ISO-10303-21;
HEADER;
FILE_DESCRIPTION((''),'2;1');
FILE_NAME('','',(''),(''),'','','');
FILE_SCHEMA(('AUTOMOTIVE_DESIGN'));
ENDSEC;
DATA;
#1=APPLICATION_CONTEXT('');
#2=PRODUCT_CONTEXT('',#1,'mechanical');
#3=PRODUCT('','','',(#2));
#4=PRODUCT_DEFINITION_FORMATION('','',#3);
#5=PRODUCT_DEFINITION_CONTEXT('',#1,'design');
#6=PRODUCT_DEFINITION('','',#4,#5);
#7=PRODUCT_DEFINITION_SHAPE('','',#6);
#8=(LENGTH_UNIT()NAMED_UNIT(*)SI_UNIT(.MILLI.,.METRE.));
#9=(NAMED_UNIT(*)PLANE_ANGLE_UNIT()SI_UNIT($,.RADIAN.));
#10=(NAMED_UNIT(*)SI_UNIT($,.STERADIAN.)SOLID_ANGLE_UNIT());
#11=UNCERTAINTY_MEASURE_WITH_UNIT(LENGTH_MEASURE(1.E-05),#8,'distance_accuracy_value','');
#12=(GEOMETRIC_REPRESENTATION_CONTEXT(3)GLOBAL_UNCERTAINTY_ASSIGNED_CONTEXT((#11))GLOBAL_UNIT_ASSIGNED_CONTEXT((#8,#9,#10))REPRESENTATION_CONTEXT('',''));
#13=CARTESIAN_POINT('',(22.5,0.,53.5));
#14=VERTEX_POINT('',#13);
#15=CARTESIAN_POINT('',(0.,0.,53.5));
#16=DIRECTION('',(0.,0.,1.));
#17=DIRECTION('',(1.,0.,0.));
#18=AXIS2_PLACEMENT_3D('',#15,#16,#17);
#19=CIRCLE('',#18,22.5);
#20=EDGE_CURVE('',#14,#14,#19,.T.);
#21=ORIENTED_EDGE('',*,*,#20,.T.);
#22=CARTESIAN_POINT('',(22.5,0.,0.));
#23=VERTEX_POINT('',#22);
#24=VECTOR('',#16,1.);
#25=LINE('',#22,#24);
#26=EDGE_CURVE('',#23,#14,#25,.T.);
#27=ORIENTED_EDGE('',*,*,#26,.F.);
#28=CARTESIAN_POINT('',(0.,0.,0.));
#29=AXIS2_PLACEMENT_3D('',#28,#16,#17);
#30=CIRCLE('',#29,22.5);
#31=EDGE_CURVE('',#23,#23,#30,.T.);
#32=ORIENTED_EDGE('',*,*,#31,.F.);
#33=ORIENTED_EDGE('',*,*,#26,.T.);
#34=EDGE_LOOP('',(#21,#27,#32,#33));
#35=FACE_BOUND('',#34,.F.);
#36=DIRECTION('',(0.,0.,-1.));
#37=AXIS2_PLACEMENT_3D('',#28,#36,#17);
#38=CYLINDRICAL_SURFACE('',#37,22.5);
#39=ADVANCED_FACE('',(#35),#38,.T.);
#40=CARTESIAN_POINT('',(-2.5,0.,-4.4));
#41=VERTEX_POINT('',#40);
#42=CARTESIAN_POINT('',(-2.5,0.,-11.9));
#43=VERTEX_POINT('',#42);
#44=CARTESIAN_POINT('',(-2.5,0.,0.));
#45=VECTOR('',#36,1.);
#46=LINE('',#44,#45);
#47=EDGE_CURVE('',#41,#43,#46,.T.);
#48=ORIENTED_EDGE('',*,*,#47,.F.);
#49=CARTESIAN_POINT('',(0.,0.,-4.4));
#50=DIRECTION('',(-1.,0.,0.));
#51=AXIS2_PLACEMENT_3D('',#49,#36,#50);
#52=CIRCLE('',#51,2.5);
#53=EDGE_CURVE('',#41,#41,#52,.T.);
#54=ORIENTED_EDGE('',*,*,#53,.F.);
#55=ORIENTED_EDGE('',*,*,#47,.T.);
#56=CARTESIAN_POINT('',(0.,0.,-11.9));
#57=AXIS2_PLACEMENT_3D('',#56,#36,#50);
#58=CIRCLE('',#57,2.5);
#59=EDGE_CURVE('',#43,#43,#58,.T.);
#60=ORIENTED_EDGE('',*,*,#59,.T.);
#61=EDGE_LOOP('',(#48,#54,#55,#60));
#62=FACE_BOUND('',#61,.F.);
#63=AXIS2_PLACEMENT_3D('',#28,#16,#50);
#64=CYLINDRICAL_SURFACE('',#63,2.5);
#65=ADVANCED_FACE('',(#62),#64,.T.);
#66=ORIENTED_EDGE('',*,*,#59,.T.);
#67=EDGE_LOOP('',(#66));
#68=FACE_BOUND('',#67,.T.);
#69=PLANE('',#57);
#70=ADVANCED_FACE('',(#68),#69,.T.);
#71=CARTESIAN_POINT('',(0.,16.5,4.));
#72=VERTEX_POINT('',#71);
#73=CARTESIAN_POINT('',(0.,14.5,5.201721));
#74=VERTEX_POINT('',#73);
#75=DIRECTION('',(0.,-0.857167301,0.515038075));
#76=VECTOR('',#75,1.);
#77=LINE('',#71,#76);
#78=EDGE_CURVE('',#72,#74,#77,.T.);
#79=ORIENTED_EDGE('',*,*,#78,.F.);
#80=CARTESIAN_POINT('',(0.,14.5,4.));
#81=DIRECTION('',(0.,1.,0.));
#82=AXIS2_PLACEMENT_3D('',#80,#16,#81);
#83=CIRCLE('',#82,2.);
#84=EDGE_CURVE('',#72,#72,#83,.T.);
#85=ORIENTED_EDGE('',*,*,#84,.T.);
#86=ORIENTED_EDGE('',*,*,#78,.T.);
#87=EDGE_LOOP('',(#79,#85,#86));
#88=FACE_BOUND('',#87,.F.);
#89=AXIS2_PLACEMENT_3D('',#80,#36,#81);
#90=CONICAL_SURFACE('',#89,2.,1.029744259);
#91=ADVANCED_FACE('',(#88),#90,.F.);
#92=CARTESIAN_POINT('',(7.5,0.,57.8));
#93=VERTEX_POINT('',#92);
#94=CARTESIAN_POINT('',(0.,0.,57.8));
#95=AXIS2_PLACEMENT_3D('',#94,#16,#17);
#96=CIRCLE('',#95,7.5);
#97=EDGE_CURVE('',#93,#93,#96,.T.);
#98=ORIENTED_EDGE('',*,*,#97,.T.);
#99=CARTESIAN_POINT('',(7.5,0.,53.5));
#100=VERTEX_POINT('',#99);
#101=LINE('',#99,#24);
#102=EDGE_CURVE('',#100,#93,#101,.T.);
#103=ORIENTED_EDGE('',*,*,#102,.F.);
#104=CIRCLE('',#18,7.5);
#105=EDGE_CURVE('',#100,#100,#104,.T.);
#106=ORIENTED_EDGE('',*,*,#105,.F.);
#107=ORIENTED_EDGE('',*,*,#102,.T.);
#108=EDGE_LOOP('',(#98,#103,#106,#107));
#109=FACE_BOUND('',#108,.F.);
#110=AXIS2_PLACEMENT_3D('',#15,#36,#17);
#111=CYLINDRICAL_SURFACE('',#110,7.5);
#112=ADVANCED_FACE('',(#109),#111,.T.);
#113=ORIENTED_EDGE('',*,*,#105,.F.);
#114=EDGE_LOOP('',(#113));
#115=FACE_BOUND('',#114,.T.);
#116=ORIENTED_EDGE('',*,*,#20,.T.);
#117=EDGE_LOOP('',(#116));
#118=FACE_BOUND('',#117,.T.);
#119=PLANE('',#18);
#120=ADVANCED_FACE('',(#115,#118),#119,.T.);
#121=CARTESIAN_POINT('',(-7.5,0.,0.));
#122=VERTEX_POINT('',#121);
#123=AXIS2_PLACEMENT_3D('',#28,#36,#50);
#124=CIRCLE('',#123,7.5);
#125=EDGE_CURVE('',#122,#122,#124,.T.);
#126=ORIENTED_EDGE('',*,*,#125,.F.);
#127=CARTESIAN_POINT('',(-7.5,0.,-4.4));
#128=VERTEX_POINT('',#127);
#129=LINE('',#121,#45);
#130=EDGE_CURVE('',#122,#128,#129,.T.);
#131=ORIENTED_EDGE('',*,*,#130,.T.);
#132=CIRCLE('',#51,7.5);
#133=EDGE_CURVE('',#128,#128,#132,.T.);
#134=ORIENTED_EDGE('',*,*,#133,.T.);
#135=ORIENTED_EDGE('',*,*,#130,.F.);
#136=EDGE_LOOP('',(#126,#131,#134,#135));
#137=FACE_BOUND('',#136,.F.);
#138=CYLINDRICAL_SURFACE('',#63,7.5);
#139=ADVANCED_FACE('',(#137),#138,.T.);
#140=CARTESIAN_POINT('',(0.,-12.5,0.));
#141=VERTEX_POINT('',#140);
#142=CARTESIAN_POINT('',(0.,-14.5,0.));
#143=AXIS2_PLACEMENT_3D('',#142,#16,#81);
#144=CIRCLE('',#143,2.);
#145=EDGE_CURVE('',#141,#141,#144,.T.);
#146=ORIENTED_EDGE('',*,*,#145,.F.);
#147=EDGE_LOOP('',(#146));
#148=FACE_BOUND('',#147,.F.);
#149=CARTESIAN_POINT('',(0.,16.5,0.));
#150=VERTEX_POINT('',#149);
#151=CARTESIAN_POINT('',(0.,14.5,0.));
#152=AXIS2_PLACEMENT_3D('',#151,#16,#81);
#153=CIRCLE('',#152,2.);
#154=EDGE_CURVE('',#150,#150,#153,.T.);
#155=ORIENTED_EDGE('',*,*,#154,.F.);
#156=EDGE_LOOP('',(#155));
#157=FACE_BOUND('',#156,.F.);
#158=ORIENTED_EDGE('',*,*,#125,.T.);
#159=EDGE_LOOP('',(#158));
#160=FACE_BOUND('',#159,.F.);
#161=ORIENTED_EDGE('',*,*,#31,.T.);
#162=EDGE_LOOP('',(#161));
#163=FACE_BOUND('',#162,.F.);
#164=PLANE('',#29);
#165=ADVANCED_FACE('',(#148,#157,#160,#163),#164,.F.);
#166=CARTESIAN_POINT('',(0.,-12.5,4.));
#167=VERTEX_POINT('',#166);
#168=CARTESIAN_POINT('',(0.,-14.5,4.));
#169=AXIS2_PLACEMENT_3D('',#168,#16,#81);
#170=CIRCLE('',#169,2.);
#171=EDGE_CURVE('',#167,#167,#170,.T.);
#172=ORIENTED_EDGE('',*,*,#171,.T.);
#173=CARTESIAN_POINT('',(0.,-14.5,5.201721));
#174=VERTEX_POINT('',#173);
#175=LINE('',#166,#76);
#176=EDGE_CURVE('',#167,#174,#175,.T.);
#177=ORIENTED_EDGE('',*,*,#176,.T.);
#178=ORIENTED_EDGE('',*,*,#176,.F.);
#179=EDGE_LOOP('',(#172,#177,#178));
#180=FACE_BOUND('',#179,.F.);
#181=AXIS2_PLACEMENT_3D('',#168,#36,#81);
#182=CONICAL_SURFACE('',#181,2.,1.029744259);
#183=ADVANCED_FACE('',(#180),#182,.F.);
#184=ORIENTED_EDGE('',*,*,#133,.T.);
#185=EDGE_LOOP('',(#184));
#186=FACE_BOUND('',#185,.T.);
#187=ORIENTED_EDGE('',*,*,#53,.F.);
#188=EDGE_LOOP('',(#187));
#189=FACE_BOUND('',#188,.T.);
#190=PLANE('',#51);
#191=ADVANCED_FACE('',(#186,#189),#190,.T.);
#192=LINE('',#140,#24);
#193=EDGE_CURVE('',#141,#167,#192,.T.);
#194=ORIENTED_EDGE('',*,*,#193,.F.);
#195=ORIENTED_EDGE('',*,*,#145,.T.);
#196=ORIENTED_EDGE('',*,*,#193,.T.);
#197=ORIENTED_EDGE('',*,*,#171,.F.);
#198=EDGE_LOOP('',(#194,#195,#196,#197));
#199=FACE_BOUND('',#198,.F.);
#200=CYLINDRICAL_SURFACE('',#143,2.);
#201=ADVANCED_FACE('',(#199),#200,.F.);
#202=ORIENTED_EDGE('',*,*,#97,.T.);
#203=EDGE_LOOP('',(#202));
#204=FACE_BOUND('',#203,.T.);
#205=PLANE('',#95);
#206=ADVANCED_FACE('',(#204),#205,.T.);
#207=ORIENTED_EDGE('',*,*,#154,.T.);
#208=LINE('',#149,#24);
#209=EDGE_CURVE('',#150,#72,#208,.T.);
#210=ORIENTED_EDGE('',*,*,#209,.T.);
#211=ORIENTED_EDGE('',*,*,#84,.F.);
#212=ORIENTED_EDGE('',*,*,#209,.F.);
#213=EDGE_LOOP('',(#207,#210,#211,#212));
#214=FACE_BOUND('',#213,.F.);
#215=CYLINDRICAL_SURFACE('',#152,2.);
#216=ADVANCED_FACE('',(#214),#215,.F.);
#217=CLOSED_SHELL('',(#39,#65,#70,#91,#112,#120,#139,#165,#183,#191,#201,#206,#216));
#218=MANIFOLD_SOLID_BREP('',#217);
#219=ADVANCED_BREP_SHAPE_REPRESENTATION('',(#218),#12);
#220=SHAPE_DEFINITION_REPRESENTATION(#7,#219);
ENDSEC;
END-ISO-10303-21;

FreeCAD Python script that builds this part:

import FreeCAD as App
import Part
import Sketcher
from FreeCAD import Vector

doc = App.newDocument("Part")
body = doc.addObject("PartDesign::Body", "Body")

# Sketch on XY plane
sketch1 = body.newObject("Sketcher::SketchObject", "Sketch")
sketch1.AttachmentSupport = (doc.getObject("XY_Plane"), [""])
sketch1.MapMode = "FlatFace"
sketch1.addGeometry(Part.Circle(Vector(0, 0, 0), Vector(0, 0, 1), 22), False)
sketch1.addConstraint(Sketcher.Constraint("Coincident", 0, 3, -1, 1))
sketch1.addConstraint(Sketcher.Constraint("Diameter", 0, 45.0))
pad1 = body.newObject("PartDesign::Pad", "Pad")
pad1.Profile = sketch1
pad1.Length = 53.5

# Sketch on XY plane
sketch2 = body.newObject("Sketcher::SketchObject", "Sketch001")
sketch2.AttachmentSupport = (doc.getObject("XY_Plane"), [""])
sketch2.MapMode = "FlatFace"
sketch2.AttachmentOffset = App.Placement(Vector(0, 0, 53.5), App.Rotation())
sketch2.addGeometry(Part.Circle(Vector(0, 0, 0), Vector(0, 0, 1), 8), False)
sketch2.addConstraint(Sketcher.Constraint("Coincident", 0, 3, -1, 1))
sketch2.addConstraint(Sketcher.Constraint("Diameter", 0, 15.0))
pad2 = body.newObject("PartDesign::Pad", "Pad001")
pad2.Profile = sketch2
pad2.Length = 4.3

# Sketch on XY plane
sketch3 = body.newObject("Sketcher::SketchObject", "Sketch002")
sketch3.AttachmentSupport = (doc.getObject("XY_Plane"), [""])
sketch3.MapMode = "FlatFace"
sketch3.addGeometry(Part.Circle(Vector(0, 14.5, 0), Vector(0, 0, 1), 2), False)
sketch3.addGeometry(Part.Circle(Vector(0, -14.5, 0), Vector(0, 0, 1), 2), False)
sketch3.addConstraint(Sketcher.Constraint("Equal", 0, 1))
sketch3.addConstraint(Sketcher.Constraint("Symmetric", 0, 3, 1, 3, -1, 1))
sketch3.addConstraint(Sketcher.Constraint("PointOnObject", 0, 3, -2))
sketch3.addConstraint(Sketcher.Constraint("Diameter", 0, 4.0))
sketch3.addConstraint(Sketcher.Constraint("DistanceY", 1, 3, 0, 3, 29.0))
doc.recompute()
hole = body.newObject("PartDesign::Hole", "Hole")
hole.Profile = sketch3
hole.ThreadType = "None"
hole.Diameter = 4
hole.DepthType = "Dimension"
hole.Depth = 4
hole.DrillPoint = "Angled"
hole.DrillPointAngle = 118
hole.Reversed = True

# Sketch on XY plane
sketch4 = body.newObject("Sketcher::SketchObject", "Sketch003")
sketch4.AttachmentSupport = (doc.getObject("XY_Plane"), [""])
sketch4.MapMode = "FlatFace"
sketch4.addGeometry(Part.Circle(Vector(0, 0, 0), Vector(0, 0, 1), 2.5), False)
sketch4.addConstraint(Sketcher.Constraint("Coincident", 0, 3, -1, 1))
sketch4.addConstraint(Sketcher.Constraint("Diameter", 0, 5.0))
pad3 = body.newObject("PartDesign::Pad", "Pad002")
pad3.Profile = sketch4
pad3.Length = 11.9
pad3.Reversed = True

# Sketch on XY plane
sketch5 = body.newObject("Sketcher::SketchObject", "Sketch004")
sketch5.AttachmentSupport = (doc.getObject("XY_Plane"), [""])
sketch5.MapMode = "FlatFace"
sketch5.addGeometry(Part.Circle(Vector(0, 0, 0), Vector(0, 0, 1), 7.5), False)
sketch5.addGeometry(Part.Circle(Vector(0, 0, 0), Vector(0, 0, 1), 2.5), False)
sketch5.addConstraint(Sketcher.Constraint("Coincident", 0, 3, -1, 1))
sketch5.addConstraint(Sketcher.Constraint("Coincident", 1, 3, -1, 1))
sketch5.addConstraint(Sketcher.Constraint("Diameter", 0, 15.0))
sketch5.addConstraint(Sketcher.Constraint("Diameter", 1, 5.0))
pad4 = body.newObject("PartDesign::Pad", "Pad003")
pad4.Profile = sketch5
pad4.Length = 4.4
pad4.Reversed = True

doc.recompute()
